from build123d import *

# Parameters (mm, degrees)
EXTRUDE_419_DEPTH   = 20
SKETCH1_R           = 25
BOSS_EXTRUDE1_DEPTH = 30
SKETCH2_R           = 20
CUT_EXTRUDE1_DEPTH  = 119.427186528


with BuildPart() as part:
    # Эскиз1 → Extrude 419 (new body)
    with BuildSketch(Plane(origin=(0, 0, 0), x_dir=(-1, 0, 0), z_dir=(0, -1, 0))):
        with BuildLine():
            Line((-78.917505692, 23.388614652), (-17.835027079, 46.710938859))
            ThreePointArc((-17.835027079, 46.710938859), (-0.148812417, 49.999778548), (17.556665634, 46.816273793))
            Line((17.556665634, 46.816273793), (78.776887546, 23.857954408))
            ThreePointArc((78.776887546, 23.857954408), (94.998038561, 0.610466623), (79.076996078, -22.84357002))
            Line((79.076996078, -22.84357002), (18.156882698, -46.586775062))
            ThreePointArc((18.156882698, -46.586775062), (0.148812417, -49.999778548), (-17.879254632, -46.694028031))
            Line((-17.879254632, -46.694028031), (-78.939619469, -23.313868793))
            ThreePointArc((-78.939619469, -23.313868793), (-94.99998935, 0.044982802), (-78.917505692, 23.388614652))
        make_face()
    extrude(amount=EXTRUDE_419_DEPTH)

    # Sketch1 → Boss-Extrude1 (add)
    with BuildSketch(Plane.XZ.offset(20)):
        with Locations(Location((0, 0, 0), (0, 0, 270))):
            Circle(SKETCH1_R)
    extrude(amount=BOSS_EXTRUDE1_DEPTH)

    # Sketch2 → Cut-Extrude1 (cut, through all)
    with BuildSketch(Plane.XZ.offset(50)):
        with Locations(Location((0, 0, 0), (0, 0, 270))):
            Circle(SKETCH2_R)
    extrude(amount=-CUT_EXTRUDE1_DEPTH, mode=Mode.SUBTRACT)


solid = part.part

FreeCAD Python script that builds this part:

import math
import FreeCAD as App
import Part
import Sketcher
from FreeCAD import Vector

doc = App.newDocument("Part")
body = doc.addObject("PartDesign::Body", "Body")

sketch1 = doc.addObject("Sketcher::SketchObject", "Sketch")
body.addObject(sketch1)
sketch1.AttachmentSupport = (doc.XZ_Plane, [""])
sketch1.MapMode = "FlatFace"
sketch1.addGeometry(Part.LineSegment(Vector(18, -47, 0), Vector(79, -23, 0)), False)
sketch1.addGeometry(Part.ArcOfCircle(Part.Circle(Vector(70, 0, 0), Vector(0, 0, 1), 25), math.radians(-69), math.radians(69)), False)
sketch1.addGeometry(Part.LineSegment(Vector(79, 23, 0), Vector(18, 47, 0)), False)
sketch1.addGeometry(Part.ArcOfCircle(Part.Circle(Vector(0, 0, 0), Vector(0, 0, 1), 50), math.radians(69), math.radians(111)), False)
sketch1.addGeometry(Part.LineSegment(Vector(-18, 47, 0), Vector(-79, 23, 0)), False)
sketch1.addGeometry(Part.ArcOfCircle(Part.Circle(Vector(-70, 0, 0), Vector(0, 0, 1), 25), math.radians(111), math.radians(249)), False)
sketch1.addGeometry(Part.LineSegment(Vector(-79, -24, 0), Vector(-18, -47, 0)), False)
sketch1.addGeometry(Part.ArcOfCircle(Part.Circle(Vector(0, 0, 0), Vector(0, 0, 1), 50), math.radians(-111), math.radians(-69)), False)
sketch1.addConstraint(Sketcher.Constraint("Tangent", 0, 2, 1, 1))
sketch1.addConstraint(Sketcher.Constraint("Tangent", 1, 2, 2, 1))
sketch1.addConstraint(Sketcher.Constraint("Tangent", 2, 2, 3, 1))
sketch1.addConstraint(Sketcher.Constraint("Tangent", 3, 2, 4, 1))
sketch1.addConstraint(Sketcher.Constraint("Tangent", 4, 2, 5, 1))
sketch1.addConstraint(Sketcher.Constraint("Tangent", 5, 2, 6, 1))
sketch1.addConstraint(Sketcher.Constraint("Tangent", 6, 2, 7, 1))
sketch1.addConstraint(Sketcher.Constraint("Tangent", 7, 2, 0, 1))
sketch1.addConstraint(Sketcher.Constraint("Coincident", 3, 3, -1, 1))
sketch1.addConstraint(Sketcher.Constraint("Coincident", 7, 3, -1, 1))
sketch1.addConstraint(Sketcher.Constraint("Equal", 1, 5))
sketch1.addConstraint(Sketcher.Constraint("Equal", 3, 7))
sketch1.addConstraint(Sketcher.Constraint("Equal", 2, 4))
sketch1.addConstraint(Sketcher.Constraint("Radius", 1, 25.0))
sketch1.addConstraint(Sketcher.Constraint("Radius", 3, 50.0))
sketch1.addConstraint(Sketcher.Constraint("DistanceX", -1, 1, 1, 2, 78.939619))
sketch1.addConstraint(Sketcher.Constraint("DistanceY", -1, 1, 1, 2, 23.313869))
sketch1.addConstraint(Sketcher.Constraint("DistanceY", -1, 1, 4, 2, 22.84357))
pad1 = doc.addObject("PartDesign::Pad", "Pad")
body.addObject(pad1)
pad1.Profile = sketch1
pad1.Length = 20

sketch2 = doc.addObject("Sketcher::SketchObject", "Sketch001")
body.addObject(sketch2)
sketch2.AttachmentSupport = (doc.XZ_Plane, [""])
sketch2.MapMode = "FlatFace"
sketch2.AttachmentOffset = App.Placement(Vector(0, 0, 20), App.Rotation())
sketch2.addGeometry(Part.Circle(Vector(0, 0, 0), Vector(0, 0, 1), 25), False)
sketch2.addConstraint(Sketcher.Constraint("Coincident", 0, 3, -1, 1))
sketch2.addConstraint(Sketcher.Constraint("Diameter", 0, 50.0))
pad2 = doc.addObject("PartDesign::Pad", "Pad001")
body.addObject(pad2)
pad2.Profile = sketch2
pad2.Length = 30

sketch3 = doc.addObject("Sketcher::SketchObject", "Sketch002")
body.addObject(sketch3)
sketch3.AttachmentSupport = (doc.XZ_Plane, [""])
sketch3.MapMode = "FlatFace"
sketch3.AttachmentOffset = App.Placement(Vector(0, 0, 50), App.Rotation())
sketch3.addGeometry(Part.Circle(Vector(0, 0, 0), Vector(0, 0, 1), 20), False)
sketch3.addConstraint(Sketcher.Constraint("Coincident", 0, 3, -1, 1))
sketch3.addConstraint(Sketcher.Constraint("Diameter", 0, 40.0))
pocket1 = doc.addObject("PartDesign::Pocket", "Pocket")
body.addObject(pocket1)
pocket1.Profile = sketch3
pocket1.Type = "ThroughAll"

doc.recompute()
